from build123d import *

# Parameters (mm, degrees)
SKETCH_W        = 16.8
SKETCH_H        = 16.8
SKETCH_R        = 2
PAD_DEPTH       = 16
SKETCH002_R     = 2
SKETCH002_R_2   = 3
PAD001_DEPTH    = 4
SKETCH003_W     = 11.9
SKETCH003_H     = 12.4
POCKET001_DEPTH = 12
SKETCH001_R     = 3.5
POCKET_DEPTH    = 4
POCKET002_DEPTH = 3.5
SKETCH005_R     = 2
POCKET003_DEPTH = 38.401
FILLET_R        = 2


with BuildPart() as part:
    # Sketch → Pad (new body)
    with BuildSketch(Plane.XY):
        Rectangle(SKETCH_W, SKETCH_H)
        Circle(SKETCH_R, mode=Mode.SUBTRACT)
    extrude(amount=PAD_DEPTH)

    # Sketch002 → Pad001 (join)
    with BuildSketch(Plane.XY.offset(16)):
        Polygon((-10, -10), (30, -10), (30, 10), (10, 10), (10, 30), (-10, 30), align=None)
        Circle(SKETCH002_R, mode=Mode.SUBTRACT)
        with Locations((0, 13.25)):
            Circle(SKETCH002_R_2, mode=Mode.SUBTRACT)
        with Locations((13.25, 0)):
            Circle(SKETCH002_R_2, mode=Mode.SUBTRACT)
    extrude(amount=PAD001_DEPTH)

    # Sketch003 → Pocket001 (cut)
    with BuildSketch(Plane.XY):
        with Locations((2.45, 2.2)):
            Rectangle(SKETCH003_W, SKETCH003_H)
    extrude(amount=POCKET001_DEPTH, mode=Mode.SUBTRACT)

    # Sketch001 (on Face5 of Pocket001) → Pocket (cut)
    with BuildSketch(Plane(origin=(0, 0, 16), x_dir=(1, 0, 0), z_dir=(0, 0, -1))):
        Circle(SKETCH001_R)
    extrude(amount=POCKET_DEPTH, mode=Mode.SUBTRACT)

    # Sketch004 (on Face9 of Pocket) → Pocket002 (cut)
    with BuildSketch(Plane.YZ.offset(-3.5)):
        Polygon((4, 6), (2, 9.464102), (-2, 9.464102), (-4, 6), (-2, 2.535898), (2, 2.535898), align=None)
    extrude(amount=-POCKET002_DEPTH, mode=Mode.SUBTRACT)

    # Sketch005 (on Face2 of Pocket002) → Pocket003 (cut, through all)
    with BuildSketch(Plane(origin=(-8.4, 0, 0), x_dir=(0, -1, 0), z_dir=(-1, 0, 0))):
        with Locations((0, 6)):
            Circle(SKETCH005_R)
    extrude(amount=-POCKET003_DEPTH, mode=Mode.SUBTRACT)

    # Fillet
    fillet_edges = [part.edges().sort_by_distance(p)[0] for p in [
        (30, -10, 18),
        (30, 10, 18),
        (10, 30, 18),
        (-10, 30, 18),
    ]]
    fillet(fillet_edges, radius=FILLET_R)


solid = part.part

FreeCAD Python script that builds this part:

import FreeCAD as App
import Part
import Sketcher
from FreeCAD import Vector
Q = App.Units.Quantity


def edges_at(feature, points):
    """Names of the edges that pass closest to the given points."""
    edges = feature.Shape.Edges
    near = lambda p: min(range(len(edges)), key=lambda i: edges[i].distToShape(Part.Vertex(*p))[0])
    return sorted({f"Edge{near(p) + 1}" for p in points})


def add_polygon(sketch, points):
    """Adds a closed chain of lines whose ends are joined by coincident constraints."""
    first, n = sketch.GeometryCount, len(points)
    for a, b in zip(points, points[1:] + points[:1]):
        sketch.addGeometry(Part.LineSegment(App.Vector(*a, 0), App.Vector(*b, 0)), False)
    for i in range(n):
        sketch.addConstraint(Sketcher.Constraint("Coincident", first + i, 2, first + (i + 1) % n, 1))

doc = App.newDocument("Part")
body = doc.addObject("PartDesign::Body", "Body")

sketch1 = body.newObject("Sketcher::SketchObject", "Sketch")
sketch1.AttachmentSupport = (doc.getObject("XY_Plane"), [""])
sketch1.MapMode = "FlatFace"
add_polygon(sketch1, [(-8.4, 8.4), (-8.4, -8.4), (8.4, -8.4), (8.4, 8.4)])
sketch1.addGeometry(Part.Circle(Vector(0, 0, 0), Vector(0, 0, 1), 2), False)
sketch1.addConstraint([
    Sketcher.Constraint("Vertical", 0),
    Sketcher.Constraint("Horizontal", 1),
    Sketcher.Constraint("Vertical", 2),
    Sketcher.Constraint("Horizontal", 3),
    Sketcher.Constraint("Coincident", 4, 3, -1, 1),
    Sketcher.Constraint("Symmetric", 0, 2, 2, 2, -1, 1),
    Sketcher.Constraint("Equal", 3, 0),
    Sketcher.Constraint("Diameter", 4, 4.0),
    Sketcher.Constraint("DistanceX", 1, 1, 1, 2, 16.8),
])
pad1 = body.newObject("PartDesign::Pad", "Pad")
pad1.Profile = sketch1
pad1.Length = 16

sketch2 = body.newObject("Sketcher::SketchObject", "Sketch001")
sketch2.AttachmentSupport = (doc.getObject("XY_Plane"), [""])
sketch2.MapMode = "FlatFace"
sketch2.AttachmentOffset = App.Placement(Vector(0, 0, 16), App.Rotation())
add_polygon(sketch2, [(-10, -10), (30, -10), (30, 10), (10, 10), (10, 30), (-10, 30)])
sketch2.addGeometry(Part.Circle(Vector(0, 0, 0), Vector(0, 0, 1), 2), False)
sketch2.addGeometry(Part.Circle(Vector(13.25, 0, 0), Vector(0, 0, 1), 3), False)
sketch2.addGeometry(Part.Circle(Vector(0, 13.25, 0), Vector(0, 0, 1), 3), False)
sketch2.addConstraint([
    Sketcher.Constraint("Horizontal", 0),
    Sketcher.Constraint("Vertical", 1),
    Sketcher.Constraint("Horizontal", 2),
    Sketcher.Constraint("Vertical", 3),
    Sketcher.Constraint("Horizontal", 4),
    Sketcher.Constraint("Vertical", 5),
    Sketcher.Constraint("Coincident", 6, 3, -1, 1),
    Sketcher.Constraint("Equal", 7, 8),
    Sketcher.Constraint("Symmetric", 2, 2, 5, 2, -1, 1),
    Sketcher.Constraint("PointOnObject", 7, 3, -1),
    Sketcher.Constraint("PointOnObject", 8, 3, -2),
    Sketcher.Constraint("Equal", 2, 4),
    Sketcher.Constraint("Equal", 4, 1),
    Sketcher.Constraint("Equal", 1, 3),
    Sketcher.Constraint("Diameter", 6, 4.0),
    Sketcher.Constraint("Diameter", 7, 6.0),
    Sketcher.Constraint("DistanceX", 0, 1, 0, 2, 40.0),
    Sketcher.Constraint("DistanceX", -1, 1, 7, 3, 13.25),
    Sketcher.Constraint("DistanceY", -1, 1, 8, 3, 13.25),
])
pad2 = body.newObject("PartDesign::Pad", "Pad001")
pad2.Profile = sketch2
pad2.Length = 4

sketch3 = body.newObject("Sketcher::SketchObject", "Sketch002")
sketch3.AttachmentSupport = (doc.getObject("XY_Plane"), [""])
sketch3.MapMode = "FlatFace"
add_polygon(sketch3, [(-3.5, 8.4), (-3.5, -4), (8.4, -4), (8.4, 8.4)])
sketch3.addConstraint([
    Sketcher.Constraint("Vertical", 0),
    Sketcher.Constraint("Horizontal", 1),
    Sketcher.Constraint("Vertical", 2),
    Sketcher.Constraint("Horizontal", 3),
    Sketcher.Constraint("DistanceX", 1, 1, 1, 2, 11.9),
    Sketcher.Constraint("DistanceY", 0, 2, 0, 1, 12.4),
    Sketcher.Constraint("DistanceY", 0, 2, -1, 1, 4.0),
    Sketcher.Constraint("DistanceX", 0, 2, -1, 1, 3.5),
])
pocket1 = body.newObject("PartDesign::Pocket", "Pocket")
pocket1.Profile = sketch3
pocket1.Length = 12
pocket1.Reversed = True

sketch4 = body.newObject("Sketcher::SketchObject", "Sketch003")
sketch4.AttachmentSupport = (doc.getObject("XY_Plane"), [""])
sketch4.MapMode = "FlatFace"
sketch4.AttachmentOffset = App.Placement(Vector(0, 0, 16), App.Rotation())
sketch4.addGeometry(Part.Circle(Vector(0, 0, 0), Vector(0, 0, 1), 3.5), False)
sketch4.addConstraint([
    Sketcher.Constraint("Coincident", 0, 3, -1, 1),
    Sketcher.Constraint("Diameter", 0, 7.0),
])
pocket2 = body.newObject("PartDesign::Pocket", "Pocket001")
pocket2.Profile = sketch4
pocket2.Length = 4

sketch5 = body.newObject("Sketcher::SketchObject", "Sketch004")
sketch5.AttachmentSupport = (doc.getObject("YZ_Plane"), [""])
sketch5.MapMode = "FlatFace"
sketch5.AttachmentOffset = App.Placement(Vector(0, 0, -3.5), App.Rotation())
add_polygon(sketch5, [(4, 6), (2, 9.464102), (-2, 9.464102), (-4, 6), (-2, 2.535898), (2, 2.535898)])
sketch5.addConstraint([
    Sketcher.Constraint("Horizontal", 1),
    Sketcher.Constraint("Horizontal", 4),
    Sketcher.Constraint("Symmetric", 2, 2, 5, 2, -2),
    Sketcher.Constraint("Parallel", 0, 3),
    Sketcher.Constraint("Parallel", 2, 5),
    Sketcher.Constraint("Vertical", 1, 2, 3, 2),
    Sketcher.Constraint("Vertical", 0, 2, 4, 2),
    Sketcher.Constraint("DistanceX", 1, 2, 1, 1, 4.0),
    Sketcher.Constraint("Angle", 0, Q("119.999997 deg")),
    Sketcher.Constraint("Distance", 0, 4.0),
    Sketcher.Constraint("DistanceY", -1, 1, 2, 2, 6.0),
])
pocket3 = body.newObject("PartDesign::Pocket", "Pocket002")
pocket3.Profile = sketch5
pocket3.Length = 3.5

sketch6 = body.newObject("Sketcher::SketchObject", "Sketch005")
sketch6.AttachmentSupport = (doc.getObject("YZ_Plane"), [""])
sketch6.MapMode = "FlatFace"
sketch6.AttachmentOffset = App.Placement(Vector(0, 0, -8.4), App.Rotation())
sketch6.addGeometry(Part.Circle(Vector(0, 6, 0), Vector(0, 0, 1), 2), False)
sketch6.addConstraint([
    Sketcher.Constraint("PointOnObject", 0, 3, -2),
    Sketcher.Constraint("Diameter", 0, 4.0),
    Sketcher.Constraint("DistanceY", -1, 1, 0, 3, 6.0),
])
pocket4 = body.newObject("PartDesign::Pocket", "Pocket003")
pocket4.Profile = sketch6
pocket4.Type = "ThroughAll"
pocket4.Reversed = True
doc.recompute()

fillet = body.newObject("PartDesign::Fillet", "Fillet")
fillet.Base = (pocket4, edges_at(pocket4, [
    (30, -10, 18),
    (30, 10, 18),
    (10, 30, 18),
    (-10, 30, 18),
]))
fillet.Radius = 2

doc.recompute()
